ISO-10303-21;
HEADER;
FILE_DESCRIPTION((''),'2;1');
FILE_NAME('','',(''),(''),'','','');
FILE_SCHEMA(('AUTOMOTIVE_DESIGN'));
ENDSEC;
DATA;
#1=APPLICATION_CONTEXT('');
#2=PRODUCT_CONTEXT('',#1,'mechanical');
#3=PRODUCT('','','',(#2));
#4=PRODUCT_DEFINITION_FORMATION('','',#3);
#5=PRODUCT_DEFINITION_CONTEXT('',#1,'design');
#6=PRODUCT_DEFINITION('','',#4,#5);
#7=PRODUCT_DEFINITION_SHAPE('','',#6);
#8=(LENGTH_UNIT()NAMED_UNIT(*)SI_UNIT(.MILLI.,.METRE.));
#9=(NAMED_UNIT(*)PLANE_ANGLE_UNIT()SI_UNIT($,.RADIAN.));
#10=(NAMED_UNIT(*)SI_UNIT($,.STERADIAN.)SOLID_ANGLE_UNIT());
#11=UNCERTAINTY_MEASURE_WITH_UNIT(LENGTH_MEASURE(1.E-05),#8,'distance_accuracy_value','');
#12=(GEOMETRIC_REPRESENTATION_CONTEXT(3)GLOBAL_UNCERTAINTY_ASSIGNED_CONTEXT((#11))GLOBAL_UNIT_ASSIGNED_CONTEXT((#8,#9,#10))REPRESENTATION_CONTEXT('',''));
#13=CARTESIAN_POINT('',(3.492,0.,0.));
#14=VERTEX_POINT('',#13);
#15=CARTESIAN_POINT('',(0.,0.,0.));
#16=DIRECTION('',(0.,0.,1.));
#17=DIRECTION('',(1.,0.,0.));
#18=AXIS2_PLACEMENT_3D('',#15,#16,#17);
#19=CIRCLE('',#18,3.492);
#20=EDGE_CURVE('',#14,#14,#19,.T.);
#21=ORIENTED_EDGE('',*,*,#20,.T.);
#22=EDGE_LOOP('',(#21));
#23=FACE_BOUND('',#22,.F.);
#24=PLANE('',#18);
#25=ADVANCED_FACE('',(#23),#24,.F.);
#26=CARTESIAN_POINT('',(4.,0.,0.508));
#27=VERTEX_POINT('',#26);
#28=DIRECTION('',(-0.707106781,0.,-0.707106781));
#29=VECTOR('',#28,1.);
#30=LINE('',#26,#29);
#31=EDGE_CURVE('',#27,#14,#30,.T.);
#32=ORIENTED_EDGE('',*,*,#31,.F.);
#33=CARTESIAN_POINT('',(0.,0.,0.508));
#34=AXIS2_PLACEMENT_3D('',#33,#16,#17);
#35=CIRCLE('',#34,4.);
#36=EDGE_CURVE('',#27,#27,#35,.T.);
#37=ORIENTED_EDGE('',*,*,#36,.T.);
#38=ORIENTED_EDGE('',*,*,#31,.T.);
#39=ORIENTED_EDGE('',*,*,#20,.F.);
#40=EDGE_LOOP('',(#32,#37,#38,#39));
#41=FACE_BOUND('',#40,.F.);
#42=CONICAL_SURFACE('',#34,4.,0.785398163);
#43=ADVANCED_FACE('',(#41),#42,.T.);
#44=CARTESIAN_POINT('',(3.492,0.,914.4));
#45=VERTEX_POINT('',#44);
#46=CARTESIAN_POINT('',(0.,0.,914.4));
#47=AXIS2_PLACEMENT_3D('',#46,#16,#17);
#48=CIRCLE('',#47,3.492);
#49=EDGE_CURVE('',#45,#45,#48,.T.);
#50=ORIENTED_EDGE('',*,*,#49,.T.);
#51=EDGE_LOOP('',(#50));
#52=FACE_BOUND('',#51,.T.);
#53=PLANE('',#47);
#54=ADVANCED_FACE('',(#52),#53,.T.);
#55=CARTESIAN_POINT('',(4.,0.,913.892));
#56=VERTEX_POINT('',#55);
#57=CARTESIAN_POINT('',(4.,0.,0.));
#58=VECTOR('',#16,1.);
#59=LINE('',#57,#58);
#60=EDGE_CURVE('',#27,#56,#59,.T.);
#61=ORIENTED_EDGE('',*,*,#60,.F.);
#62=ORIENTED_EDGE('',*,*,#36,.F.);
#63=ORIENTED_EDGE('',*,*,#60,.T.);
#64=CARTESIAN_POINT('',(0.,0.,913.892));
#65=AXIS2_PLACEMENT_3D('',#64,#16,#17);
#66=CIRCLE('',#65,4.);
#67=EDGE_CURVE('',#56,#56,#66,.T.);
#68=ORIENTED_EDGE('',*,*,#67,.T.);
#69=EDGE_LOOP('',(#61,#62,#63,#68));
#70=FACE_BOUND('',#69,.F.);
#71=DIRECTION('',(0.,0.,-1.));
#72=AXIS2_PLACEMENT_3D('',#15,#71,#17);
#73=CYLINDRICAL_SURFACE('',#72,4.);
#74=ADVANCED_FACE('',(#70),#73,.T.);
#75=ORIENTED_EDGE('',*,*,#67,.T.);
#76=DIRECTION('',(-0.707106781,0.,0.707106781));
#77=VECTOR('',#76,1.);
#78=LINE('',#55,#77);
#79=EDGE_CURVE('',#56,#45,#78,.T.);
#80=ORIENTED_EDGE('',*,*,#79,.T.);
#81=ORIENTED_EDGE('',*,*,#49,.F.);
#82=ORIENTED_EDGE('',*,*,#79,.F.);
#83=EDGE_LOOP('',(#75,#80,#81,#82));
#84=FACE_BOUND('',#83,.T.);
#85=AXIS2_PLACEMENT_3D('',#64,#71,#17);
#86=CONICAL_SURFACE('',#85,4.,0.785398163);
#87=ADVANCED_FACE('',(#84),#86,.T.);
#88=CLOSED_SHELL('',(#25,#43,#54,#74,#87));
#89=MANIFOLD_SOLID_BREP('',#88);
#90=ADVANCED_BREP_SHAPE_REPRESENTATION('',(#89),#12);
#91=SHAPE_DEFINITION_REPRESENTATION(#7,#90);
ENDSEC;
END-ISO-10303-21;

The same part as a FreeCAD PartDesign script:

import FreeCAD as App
import Part
import Sketcher
Q = App.Units.Quantity


def edges_at(feature, points):
    """Names of the edges that pass closest to the given points."""
    edges = feature.Shape.Edges
    near = lambda p: min(range(len(edges)), key=lambda i: edges[i].distToShape(Part.Vertex(*p))[0])
    return sorted({f"Edge{near(p) + 1}" for p in points})

doc = App.newDocument("Part")
body = doc.addObject("PartDesign::Body", "Body")

# Sketch on XY plane
sketch1 = body.newObject("Sketcher::SketchObject", "Sketch")
sketch1.AttachmentSupport = (doc.getObject("XY_Plane"), [""])
sketch1.MapMode = "FlatFace"
sketch1.addGeometry(Part.Circle(App.Vector(0, 0, 0), App.Vector(0, 0, 1), 4), False)
sketch1.addConstraint(Sketcher.Constraint("Coincident", 0, 3, -1, 1))
sketch1.addConstraint(Sketcher.Constraint("Diameter", 0, Q("8 mm")))
pad1 = body.newObject("PartDesign::Pad", "Pad")
pad1.Profile = sketch1
pad1.Length = Q("36 in")
doc.recompute()

chamfer = body.newObject("PartDesign::Chamfer", "Chamfer")
chamfer.Base = (pad1, edges_at(pad1, [(-4, 0, 0), (-4, 0, 914.4)]))
chamfer.Size = Q("0.02 in")

doc.recompute()
